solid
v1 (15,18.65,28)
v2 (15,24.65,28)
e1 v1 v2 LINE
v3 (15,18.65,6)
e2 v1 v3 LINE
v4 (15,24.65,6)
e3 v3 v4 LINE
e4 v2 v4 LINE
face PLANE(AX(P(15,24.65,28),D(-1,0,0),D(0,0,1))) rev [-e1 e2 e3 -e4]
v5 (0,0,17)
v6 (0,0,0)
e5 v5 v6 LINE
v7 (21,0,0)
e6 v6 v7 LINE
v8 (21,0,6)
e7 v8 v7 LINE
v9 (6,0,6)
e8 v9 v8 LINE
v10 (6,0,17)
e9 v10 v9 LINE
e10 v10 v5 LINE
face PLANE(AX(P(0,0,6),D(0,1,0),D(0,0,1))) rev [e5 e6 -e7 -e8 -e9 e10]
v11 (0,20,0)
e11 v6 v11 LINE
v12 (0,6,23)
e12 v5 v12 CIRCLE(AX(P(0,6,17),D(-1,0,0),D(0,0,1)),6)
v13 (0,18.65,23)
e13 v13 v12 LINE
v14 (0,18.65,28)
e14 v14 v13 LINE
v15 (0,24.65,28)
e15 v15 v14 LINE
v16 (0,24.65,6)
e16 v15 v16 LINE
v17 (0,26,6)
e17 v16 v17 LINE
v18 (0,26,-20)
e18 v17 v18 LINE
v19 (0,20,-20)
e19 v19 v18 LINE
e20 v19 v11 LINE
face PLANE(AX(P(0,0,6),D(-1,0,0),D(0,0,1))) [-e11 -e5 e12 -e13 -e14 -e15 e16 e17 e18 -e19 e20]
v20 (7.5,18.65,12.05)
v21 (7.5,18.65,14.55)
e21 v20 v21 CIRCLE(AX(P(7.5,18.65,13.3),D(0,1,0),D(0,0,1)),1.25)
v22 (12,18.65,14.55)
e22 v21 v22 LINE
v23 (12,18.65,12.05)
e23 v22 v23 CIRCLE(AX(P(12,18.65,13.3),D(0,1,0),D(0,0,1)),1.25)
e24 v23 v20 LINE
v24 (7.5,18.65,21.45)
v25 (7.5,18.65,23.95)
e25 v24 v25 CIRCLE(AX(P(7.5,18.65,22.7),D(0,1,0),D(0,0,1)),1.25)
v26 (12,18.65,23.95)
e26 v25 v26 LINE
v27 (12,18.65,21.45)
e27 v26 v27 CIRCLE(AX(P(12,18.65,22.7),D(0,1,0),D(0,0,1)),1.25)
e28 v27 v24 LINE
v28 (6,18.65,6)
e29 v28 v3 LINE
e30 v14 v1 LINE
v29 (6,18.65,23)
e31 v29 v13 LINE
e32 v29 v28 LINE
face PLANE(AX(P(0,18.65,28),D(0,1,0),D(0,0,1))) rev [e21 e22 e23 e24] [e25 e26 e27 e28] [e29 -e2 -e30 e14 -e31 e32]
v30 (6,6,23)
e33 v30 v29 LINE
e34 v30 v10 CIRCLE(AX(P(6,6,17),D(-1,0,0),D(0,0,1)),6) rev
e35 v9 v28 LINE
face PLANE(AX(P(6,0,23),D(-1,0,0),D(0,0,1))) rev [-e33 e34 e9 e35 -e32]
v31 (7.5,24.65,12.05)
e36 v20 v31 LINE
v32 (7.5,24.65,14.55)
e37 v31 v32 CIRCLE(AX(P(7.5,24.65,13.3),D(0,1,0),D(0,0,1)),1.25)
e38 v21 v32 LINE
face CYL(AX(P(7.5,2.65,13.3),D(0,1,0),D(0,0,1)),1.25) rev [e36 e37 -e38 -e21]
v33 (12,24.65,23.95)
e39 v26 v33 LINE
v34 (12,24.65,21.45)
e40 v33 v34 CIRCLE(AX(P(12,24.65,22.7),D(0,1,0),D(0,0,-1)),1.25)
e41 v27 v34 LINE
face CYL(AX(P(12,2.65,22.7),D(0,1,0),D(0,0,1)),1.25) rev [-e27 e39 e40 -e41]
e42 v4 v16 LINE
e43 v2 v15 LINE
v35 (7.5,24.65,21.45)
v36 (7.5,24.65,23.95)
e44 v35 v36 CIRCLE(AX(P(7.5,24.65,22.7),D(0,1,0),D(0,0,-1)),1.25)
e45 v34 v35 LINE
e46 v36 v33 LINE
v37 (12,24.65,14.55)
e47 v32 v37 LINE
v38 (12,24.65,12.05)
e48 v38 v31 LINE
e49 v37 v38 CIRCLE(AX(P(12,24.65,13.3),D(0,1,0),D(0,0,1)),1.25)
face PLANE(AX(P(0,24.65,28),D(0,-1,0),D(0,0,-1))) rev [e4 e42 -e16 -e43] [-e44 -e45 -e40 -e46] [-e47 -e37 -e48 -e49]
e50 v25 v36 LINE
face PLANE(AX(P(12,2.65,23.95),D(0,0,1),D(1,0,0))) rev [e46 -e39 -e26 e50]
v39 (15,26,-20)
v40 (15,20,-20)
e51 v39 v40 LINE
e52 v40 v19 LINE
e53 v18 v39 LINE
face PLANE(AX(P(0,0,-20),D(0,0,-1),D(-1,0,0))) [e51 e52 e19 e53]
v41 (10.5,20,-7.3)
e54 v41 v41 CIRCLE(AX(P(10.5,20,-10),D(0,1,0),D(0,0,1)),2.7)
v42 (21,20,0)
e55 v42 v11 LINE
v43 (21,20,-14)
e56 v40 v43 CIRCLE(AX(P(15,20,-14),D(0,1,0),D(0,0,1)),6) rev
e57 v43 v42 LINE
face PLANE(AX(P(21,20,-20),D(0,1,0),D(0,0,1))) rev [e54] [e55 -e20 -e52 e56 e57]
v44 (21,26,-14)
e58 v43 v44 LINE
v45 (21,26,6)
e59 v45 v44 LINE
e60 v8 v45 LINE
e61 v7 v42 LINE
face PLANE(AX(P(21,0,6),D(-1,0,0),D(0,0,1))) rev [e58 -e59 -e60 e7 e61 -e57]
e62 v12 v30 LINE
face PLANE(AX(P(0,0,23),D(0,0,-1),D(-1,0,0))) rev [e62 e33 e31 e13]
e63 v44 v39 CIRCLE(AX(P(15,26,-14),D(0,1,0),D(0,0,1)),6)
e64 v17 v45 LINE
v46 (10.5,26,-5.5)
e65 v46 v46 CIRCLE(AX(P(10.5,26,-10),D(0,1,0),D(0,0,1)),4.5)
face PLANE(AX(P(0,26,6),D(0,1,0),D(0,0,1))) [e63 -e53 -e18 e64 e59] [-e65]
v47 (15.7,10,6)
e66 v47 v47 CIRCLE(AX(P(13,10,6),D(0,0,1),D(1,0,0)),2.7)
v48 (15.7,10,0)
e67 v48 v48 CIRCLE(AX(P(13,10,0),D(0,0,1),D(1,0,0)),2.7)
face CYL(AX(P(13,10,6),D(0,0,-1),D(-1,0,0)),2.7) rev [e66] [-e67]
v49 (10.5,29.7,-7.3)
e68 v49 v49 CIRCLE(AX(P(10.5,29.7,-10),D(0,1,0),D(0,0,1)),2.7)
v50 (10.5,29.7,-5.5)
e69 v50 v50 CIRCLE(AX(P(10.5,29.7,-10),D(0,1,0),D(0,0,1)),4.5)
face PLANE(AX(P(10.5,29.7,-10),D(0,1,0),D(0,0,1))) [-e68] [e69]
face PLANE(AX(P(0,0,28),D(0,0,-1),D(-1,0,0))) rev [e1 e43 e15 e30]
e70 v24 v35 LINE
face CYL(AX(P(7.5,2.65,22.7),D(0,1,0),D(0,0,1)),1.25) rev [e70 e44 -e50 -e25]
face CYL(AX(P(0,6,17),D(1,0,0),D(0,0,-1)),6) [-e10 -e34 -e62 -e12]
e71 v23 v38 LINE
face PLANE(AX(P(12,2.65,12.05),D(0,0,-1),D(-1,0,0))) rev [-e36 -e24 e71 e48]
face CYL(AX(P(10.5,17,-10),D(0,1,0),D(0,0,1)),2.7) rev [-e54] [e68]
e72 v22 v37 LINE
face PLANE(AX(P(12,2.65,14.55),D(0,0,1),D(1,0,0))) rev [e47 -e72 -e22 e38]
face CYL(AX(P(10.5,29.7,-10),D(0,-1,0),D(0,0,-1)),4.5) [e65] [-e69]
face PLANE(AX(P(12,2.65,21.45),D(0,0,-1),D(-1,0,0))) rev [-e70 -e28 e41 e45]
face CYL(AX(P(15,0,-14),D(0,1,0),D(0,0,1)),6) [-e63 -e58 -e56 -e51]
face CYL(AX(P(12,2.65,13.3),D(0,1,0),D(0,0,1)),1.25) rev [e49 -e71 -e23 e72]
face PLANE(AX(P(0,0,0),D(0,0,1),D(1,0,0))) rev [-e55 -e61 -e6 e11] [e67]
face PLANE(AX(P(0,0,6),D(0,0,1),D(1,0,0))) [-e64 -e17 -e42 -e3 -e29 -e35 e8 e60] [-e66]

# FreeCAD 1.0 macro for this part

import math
import FreeCAD as App
import Part
import Sketcher


def edges_at(feature, points):
    """Names of the edges that pass closest to the given points."""
    edges = feature.Shape.Edges
    near = lambda p: min(range(len(edges)), key=lambda i: edges[i].distToShape(Part.Vertex(*p))[0])
    return sorted({f"Edge{near(p) + 1}" for p in points})


def add_polygon(sketch, points):
    """Adds a closed chain of lines whose ends are joined by coincident constraints."""
    first, n = sketch.GeometryCount, len(points)
    for a, b in zip(points, points[1:] + points[:1]):
        sketch.addGeometry(Part.LineSegment(App.Vector(*a, 0), App.Vector(*b, 0)), False)
    for i in range(n):
        sketch.addConstraint(Sketcher.Constraint("Coincident", first + i, 2, first + (i + 1) % n, 1))

doc = App.newDocument("Part")
body = doc.addObject("PartDesign::Body", "Body")

sketch1 = body.newObject("Sketcher::SketchObject", "Sketch")
sketch1.AttachmentSupport = (doc.getObject("XY_Plane"), [""])
sketch1.MapMode = "FlatFace"
add_polygon(sketch1, [(0, 26), (0, 0), (21, 0), (21, 26)])
sketch1.addGeometry(Part.Circle(App.Vector(13, 10, 0), App.Vector(0, 0, 1), 2.7), False)
sketch1.addConstraint([
    Sketcher.Constraint("Vertical", 0),
    Sketcher.Constraint("Horizontal", 1),
    Sketcher.Constraint("Vertical", 2),
    Sketcher.Constraint("Horizontal", 3),
    Sketcher.Constraint("Coincident", 0, 2, -1, 1),
    Sketcher.Constraint("Diameter", 4, 5.4),
    Sketcher.Constraint("DistanceX", 1, 1, 1, 2, 21.0),
    Sketcher.Constraint("DistanceY", 0, 2, 0, 1, 26.0),
    Sketcher.Constraint("DistanceX", -1, 1, 4, 3, 13.0),
    Sketcher.Constraint("DistanceY", -1, 1, 4, 3, 10.0),
])
pad1 = body.newObject("PartDesign::Pad", "Pad")
pad1.Profile = sketch1
pad1.Length = 6

sketch2 = body.newObject("Sketcher::SketchObject", "Sketch001")
sketch2.AttachmentSupport = (doc.getObject("XY_Plane"), [""])
sketch2.MapMode = "FlatFace"
add_polygon(sketch2, [(21, 26), (21, 20), (0, 20), (0, 26)])
sketch2.addConstraint([
    Sketcher.Constraint("Vertical", 0),
    Sketcher.Constraint("Horizontal", 1),
    Sketcher.Constraint("Vertical", 2),
    Sketcher.Constraint("Horizontal", 3),
    Sketcher.Constraint("PointOnObject", 1, 2, -2),
    Sketcher.Constraint("DistanceX", 1, 2, 1, 1, 21.0),
    Sketcher.Constraint("DistanceY", 0, 2, 0, 1, 6.0),
    Sketcher.Constraint("DistanceY", -1, 1, 0, 2, 20.0),
])
pad2 = body.newObject("PartDesign::Pad", "Pad001")
pad2.Profile = sketch2
pad2.Length = 20
pad2.Reversed = True

sketch3 = body.newObject("Sketcher::SketchObject", "Sketch002")
sketch3.AttachmentSupport = (doc.getObject("XZ_Plane"), [""])
sketch3.MapMode = "FlatFace"
sketch3.AttachmentOffset = App.Placement(App.Vector(0, 0, -26), App.Rotation())
sketch3.addGeometry(Part.Circle(App.Vector(10.5, -10, 0), App.Vector(0, 0, 1), 2.7), False)
sketch3.addConstraint([
    Sketcher.Constraint("Diameter", 0, 5.4),
    Sketcher.Constraint("DistanceY", 0, 3, -1, 1, 10.0),
    Sketcher.Constraint("DistanceX", -1, 1, 0, 3, 10.5),
])
pocket1 = body.newObject("PartDesign::Pocket", "Pocket")
pocket1.Profile = sketch3
pocket1.Length = 9
pocket1.Reversed = True

sketch4 = body.newObject("Sketcher::SketchObject", "Sketch003")
sketch4.AttachmentSupport = (doc.getObject("XY_Plane"), [""])
sketch4.MapMode = "FlatFace"
sketch4.AttachmentOffset = App.Placement(App.Vector(0, 0, 6), App.Rotation())
add_polygon(sketch4, [(0, 25), (0, 19), (15, 19), (15, 25)])
sketch4.addConstraint([
    Sketcher.Constraint("Vertical", 0),
    Sketcher.Constraint("Horizontal", 1),
    Sketcher.Constraint("Vertical", 2),
    Sketcher.Constraint("Horizontal", 3),
    Sketcher.Constraint("PointOnObject", 0, 2, -2),
    Sketcher.Constraint("DistanceX", 1, 1, 1, 2, 15.0),
    Sketcher.Constraint("DistanceY", 0, 2, 0, 1, 6.0),
    Sketcher.Constraint("DistanceY", -1, 1, 0, 2, 18.65),
])
pad3 = body.newObject("PartDesign::Pad", "Pad002")
pad3.Profile = sketch4
pad3.Length = 22

sketch5 = body.newObject("Sketcher::SketchObject", "Sketch004")
sketch5.AttachmentSupport = (doc.getObject("XZ_Plane"), [""])
sketch5.MapMode = "FlatFace"
sketch5.AttachmentOffset = App.Placement(App.Vector(0, 0, -26), App.Rotation())
sketch5.addGeometry([
    Part.Circle(App.Vector(10.5, -10, 0), App.Vector(0, 0, 1), 4.5),
    Part.Circle(App.Vector(10.5, -10, 0), App.Vector(0, 0, 1), 2.7),
], False)
sketch5.addConstraint([
    Sketcher.Constraint("Coincident", 1, 3, 0, 3),
    Sketcher.Constraint("Diameter", 0, 9.0),
    Sketcher.Constraint("Diameter", 1, 5.4),
    Sketcher.Constraint("DistanceY", 0, 3, -1, 1, 10.0),
    Sketcher.Constraint("DistanceX", -1, 1, 0, 3, 10.5),
])
pad4 = body.newObject("PartDesign::Pad", "Pad003")
pad4.Profile = sketch5
pad4.Length = 3.7
pad4.Reversed = True

sketch6 = body.newObject("Sketcher::SketchObject", "Sketch005")
sketch6.AttachmentSupport = (doc.getObject("XY_Plane"), [""])
sketch6.MapMode = "FlatFace"
sketch6.AttachmentOffset = App.Placement(App.Vector(0, 0, 6), App.Rotation())
add_polygon(sketch6, [(0, 19), (0, 0), (6, 0), (6, 19)])
sketch6.addConstraint([
    Sketcher.Constraint("Vertical", 0),
    Sketcher.Constraint("Horizontal", 1),
    Sketcher.Constraint("Vertical", 2),
    Sketcher.Constraint("Horizontal", 3),
    Sketcher.Constraint("Coincident", 0, 2, -1, 1),
    Sketcher.Constraint("DistanceX", 1, 1, 1, 2, 6.0),
    Sketcher.Constraint("DistanceY", 0, 2, 0, 1, 18.65),
])
pad5 = body.newObject("PartDesign::Pad", "Pad004")
pad5.Profile = sketch6
pad5.Length = 17
doc.recompute()

fillet = body.newObject("PartDesign::Fillet", "Fillet")
fillet.Base = (pad5, edges_at(pad5, [(3, 0, 23)]))
fillet.Radius = 6

sketch7 = body.newObject("Sketcher::SketchObject", "Sketch006")
sketch7.AttachmentSupport = (doc.getObject("XZ_Plane"), [""])
sketch7.MapMode = "FlatFace"
sketch7.AttachmentOffset = App.Placement(App.Vector(0, 0, -24.65), App.Rotation())
sketch7.addGeometry([
    Part.LineSegment(App.Vector(7.5, 14.6, 0), App.Vector(12, 14.6, 0)),
    Part.ArcOfCircle(Part.Circle(App.Vector(12, 13.3, 0), App.Vector(0, 0, 1), 1.2), math.radians(-90), math.radians(90)),
    Part.LineSegment(App.Vector(12, 12.1, 0), App.Vector(7.5, 12.1, 0)),
    Part.ArcOfCircle(Part.Circle(App.Vector(7.5, 13.3, 0), App.Vector(0, 0, 1), 1.2), math.radians(90), math.radians(270)),
    Part.LineSegment(App.Vector(12, 21.4, 0), App.Vector(7.5, 21.4, 0)),
    Part.ArcOfCircle(Part.Circle(App.Vector(7.5, 22.7, 0), App.Vector(0, 0, 1), 1.2), math.radians(90), math.radians(270)),
    Part.LineSegment(App.Vector(7.5, 23.9, 0), App.Vector(12, 23.9, 0)),
    Part.ArcOfCircle(Part.Circle(App.Vector(12, 22.7, 0), App.Vector(0, 0, 1), 1.2), math.radians(-90), math.radians(90)),
], False)
sketch7.addConstraint([
    Sketcher.Constraint("Tangent", 0, 2, 1, 2),
    Sketcher.Constraint("Tangent", 1, 1, 2, 1),
    Sketcher.Constraint("Tangent", 2, 2, 3, 2),
    Sketcher.Constraint("Tangent", 3, 1, 0, 1),
    Sketcher.Constraint("Tangent", 4, 2, 5, 2),
    Sketcher.Constraint("Tangent", 5, 1, 6, 1),
    Sketcher.Constraint("Tangent", 6, 2, 7, 2),
    Sketcher.Constraint("Tangent", 7, 1, 4, 1),
    Sketcher.Constraint("Horizontal", 0),
    Sketcher.Constraint("Horizontal", 2),
    Sketcher.Constraint("Horizontal", 4),
    Sketcher.Constraint("Horizontal", 6),
    Sketcher.Constraint("Equal", 3, 5),
    Sketcher.Constraint("Vertical", 3, 3, 5, 3),
    Sketcher.Constraint("Vertical", 1, 3, 7, 3),
    Sketcher.Constraint("Radius", 1, 1.25),
    Sketcher.Constraint("DistanceX", 0, 1, 0, 2, 4.5),
    Sketcher.Constraint("DistanceX", -1, 1, 1, 3, 12.0),
    Sketcher.Constraint("DistanceY", -1, 1, 1, 3, 13.3),
    Sketcher.Constraint("DistanceY", -1, 1, 5, 3, 22.7),
])
pocket2 = body.newObject("PartDesign::Pocket", "Pocket001")
pocket2.Profile = sketch7
pocket2.Length = 22
pocket2.Reversed = True
doc.recompute()

fillet2 = body.newObject("PartDesign::Fillet", "Fillet001")
fillet2.Base = (pocket2, edges_at(pocket2, [(21, 23, -20)]))
fillet2.Radius = 6

sketch8 = body.newObject("Sketcher::SketchObject", "Sketch007")
sketch8.AttachmentSupport = (doc.getObject("XZ_Plane"), [""])
sketch8.MapMode = "FlatFace"
sketch8.AttachmentOffset = App.Placement(App.Vector(0, 0, -26), App.Rotation())
sketch8.addGeometry([
    Part.Circle(App.Vector(10.5, -10, 0), App.Vector(0, 0, 1), 4.5),
    Part.Circle(App.Vector(10.5, -10, 0), App.Vector(0, 0, 1), 2.7),
], False)
sketch8.addConstraint([
    Sketcher.Constraint("Coincident", 1, 3, 0, 3),
    Sketcher.Constraint("Diameter", 0, 9.0),
    Sketcher.Constraint("Diameter", 1, 5.4),
    Sketcher.Constraint("DistanceY", 0, 3, -1, 1, 10.0),
    Sketcher.Constraint("DistanceX", -1, 1, 0, 3, 10.5),
])
pad6 = body.newObject("PartDesign::Pad", "Pad005")
pad6.Profile = sketch8
pad6.Length = 3.7
pad6.Reversed = True

doc.recompute()
